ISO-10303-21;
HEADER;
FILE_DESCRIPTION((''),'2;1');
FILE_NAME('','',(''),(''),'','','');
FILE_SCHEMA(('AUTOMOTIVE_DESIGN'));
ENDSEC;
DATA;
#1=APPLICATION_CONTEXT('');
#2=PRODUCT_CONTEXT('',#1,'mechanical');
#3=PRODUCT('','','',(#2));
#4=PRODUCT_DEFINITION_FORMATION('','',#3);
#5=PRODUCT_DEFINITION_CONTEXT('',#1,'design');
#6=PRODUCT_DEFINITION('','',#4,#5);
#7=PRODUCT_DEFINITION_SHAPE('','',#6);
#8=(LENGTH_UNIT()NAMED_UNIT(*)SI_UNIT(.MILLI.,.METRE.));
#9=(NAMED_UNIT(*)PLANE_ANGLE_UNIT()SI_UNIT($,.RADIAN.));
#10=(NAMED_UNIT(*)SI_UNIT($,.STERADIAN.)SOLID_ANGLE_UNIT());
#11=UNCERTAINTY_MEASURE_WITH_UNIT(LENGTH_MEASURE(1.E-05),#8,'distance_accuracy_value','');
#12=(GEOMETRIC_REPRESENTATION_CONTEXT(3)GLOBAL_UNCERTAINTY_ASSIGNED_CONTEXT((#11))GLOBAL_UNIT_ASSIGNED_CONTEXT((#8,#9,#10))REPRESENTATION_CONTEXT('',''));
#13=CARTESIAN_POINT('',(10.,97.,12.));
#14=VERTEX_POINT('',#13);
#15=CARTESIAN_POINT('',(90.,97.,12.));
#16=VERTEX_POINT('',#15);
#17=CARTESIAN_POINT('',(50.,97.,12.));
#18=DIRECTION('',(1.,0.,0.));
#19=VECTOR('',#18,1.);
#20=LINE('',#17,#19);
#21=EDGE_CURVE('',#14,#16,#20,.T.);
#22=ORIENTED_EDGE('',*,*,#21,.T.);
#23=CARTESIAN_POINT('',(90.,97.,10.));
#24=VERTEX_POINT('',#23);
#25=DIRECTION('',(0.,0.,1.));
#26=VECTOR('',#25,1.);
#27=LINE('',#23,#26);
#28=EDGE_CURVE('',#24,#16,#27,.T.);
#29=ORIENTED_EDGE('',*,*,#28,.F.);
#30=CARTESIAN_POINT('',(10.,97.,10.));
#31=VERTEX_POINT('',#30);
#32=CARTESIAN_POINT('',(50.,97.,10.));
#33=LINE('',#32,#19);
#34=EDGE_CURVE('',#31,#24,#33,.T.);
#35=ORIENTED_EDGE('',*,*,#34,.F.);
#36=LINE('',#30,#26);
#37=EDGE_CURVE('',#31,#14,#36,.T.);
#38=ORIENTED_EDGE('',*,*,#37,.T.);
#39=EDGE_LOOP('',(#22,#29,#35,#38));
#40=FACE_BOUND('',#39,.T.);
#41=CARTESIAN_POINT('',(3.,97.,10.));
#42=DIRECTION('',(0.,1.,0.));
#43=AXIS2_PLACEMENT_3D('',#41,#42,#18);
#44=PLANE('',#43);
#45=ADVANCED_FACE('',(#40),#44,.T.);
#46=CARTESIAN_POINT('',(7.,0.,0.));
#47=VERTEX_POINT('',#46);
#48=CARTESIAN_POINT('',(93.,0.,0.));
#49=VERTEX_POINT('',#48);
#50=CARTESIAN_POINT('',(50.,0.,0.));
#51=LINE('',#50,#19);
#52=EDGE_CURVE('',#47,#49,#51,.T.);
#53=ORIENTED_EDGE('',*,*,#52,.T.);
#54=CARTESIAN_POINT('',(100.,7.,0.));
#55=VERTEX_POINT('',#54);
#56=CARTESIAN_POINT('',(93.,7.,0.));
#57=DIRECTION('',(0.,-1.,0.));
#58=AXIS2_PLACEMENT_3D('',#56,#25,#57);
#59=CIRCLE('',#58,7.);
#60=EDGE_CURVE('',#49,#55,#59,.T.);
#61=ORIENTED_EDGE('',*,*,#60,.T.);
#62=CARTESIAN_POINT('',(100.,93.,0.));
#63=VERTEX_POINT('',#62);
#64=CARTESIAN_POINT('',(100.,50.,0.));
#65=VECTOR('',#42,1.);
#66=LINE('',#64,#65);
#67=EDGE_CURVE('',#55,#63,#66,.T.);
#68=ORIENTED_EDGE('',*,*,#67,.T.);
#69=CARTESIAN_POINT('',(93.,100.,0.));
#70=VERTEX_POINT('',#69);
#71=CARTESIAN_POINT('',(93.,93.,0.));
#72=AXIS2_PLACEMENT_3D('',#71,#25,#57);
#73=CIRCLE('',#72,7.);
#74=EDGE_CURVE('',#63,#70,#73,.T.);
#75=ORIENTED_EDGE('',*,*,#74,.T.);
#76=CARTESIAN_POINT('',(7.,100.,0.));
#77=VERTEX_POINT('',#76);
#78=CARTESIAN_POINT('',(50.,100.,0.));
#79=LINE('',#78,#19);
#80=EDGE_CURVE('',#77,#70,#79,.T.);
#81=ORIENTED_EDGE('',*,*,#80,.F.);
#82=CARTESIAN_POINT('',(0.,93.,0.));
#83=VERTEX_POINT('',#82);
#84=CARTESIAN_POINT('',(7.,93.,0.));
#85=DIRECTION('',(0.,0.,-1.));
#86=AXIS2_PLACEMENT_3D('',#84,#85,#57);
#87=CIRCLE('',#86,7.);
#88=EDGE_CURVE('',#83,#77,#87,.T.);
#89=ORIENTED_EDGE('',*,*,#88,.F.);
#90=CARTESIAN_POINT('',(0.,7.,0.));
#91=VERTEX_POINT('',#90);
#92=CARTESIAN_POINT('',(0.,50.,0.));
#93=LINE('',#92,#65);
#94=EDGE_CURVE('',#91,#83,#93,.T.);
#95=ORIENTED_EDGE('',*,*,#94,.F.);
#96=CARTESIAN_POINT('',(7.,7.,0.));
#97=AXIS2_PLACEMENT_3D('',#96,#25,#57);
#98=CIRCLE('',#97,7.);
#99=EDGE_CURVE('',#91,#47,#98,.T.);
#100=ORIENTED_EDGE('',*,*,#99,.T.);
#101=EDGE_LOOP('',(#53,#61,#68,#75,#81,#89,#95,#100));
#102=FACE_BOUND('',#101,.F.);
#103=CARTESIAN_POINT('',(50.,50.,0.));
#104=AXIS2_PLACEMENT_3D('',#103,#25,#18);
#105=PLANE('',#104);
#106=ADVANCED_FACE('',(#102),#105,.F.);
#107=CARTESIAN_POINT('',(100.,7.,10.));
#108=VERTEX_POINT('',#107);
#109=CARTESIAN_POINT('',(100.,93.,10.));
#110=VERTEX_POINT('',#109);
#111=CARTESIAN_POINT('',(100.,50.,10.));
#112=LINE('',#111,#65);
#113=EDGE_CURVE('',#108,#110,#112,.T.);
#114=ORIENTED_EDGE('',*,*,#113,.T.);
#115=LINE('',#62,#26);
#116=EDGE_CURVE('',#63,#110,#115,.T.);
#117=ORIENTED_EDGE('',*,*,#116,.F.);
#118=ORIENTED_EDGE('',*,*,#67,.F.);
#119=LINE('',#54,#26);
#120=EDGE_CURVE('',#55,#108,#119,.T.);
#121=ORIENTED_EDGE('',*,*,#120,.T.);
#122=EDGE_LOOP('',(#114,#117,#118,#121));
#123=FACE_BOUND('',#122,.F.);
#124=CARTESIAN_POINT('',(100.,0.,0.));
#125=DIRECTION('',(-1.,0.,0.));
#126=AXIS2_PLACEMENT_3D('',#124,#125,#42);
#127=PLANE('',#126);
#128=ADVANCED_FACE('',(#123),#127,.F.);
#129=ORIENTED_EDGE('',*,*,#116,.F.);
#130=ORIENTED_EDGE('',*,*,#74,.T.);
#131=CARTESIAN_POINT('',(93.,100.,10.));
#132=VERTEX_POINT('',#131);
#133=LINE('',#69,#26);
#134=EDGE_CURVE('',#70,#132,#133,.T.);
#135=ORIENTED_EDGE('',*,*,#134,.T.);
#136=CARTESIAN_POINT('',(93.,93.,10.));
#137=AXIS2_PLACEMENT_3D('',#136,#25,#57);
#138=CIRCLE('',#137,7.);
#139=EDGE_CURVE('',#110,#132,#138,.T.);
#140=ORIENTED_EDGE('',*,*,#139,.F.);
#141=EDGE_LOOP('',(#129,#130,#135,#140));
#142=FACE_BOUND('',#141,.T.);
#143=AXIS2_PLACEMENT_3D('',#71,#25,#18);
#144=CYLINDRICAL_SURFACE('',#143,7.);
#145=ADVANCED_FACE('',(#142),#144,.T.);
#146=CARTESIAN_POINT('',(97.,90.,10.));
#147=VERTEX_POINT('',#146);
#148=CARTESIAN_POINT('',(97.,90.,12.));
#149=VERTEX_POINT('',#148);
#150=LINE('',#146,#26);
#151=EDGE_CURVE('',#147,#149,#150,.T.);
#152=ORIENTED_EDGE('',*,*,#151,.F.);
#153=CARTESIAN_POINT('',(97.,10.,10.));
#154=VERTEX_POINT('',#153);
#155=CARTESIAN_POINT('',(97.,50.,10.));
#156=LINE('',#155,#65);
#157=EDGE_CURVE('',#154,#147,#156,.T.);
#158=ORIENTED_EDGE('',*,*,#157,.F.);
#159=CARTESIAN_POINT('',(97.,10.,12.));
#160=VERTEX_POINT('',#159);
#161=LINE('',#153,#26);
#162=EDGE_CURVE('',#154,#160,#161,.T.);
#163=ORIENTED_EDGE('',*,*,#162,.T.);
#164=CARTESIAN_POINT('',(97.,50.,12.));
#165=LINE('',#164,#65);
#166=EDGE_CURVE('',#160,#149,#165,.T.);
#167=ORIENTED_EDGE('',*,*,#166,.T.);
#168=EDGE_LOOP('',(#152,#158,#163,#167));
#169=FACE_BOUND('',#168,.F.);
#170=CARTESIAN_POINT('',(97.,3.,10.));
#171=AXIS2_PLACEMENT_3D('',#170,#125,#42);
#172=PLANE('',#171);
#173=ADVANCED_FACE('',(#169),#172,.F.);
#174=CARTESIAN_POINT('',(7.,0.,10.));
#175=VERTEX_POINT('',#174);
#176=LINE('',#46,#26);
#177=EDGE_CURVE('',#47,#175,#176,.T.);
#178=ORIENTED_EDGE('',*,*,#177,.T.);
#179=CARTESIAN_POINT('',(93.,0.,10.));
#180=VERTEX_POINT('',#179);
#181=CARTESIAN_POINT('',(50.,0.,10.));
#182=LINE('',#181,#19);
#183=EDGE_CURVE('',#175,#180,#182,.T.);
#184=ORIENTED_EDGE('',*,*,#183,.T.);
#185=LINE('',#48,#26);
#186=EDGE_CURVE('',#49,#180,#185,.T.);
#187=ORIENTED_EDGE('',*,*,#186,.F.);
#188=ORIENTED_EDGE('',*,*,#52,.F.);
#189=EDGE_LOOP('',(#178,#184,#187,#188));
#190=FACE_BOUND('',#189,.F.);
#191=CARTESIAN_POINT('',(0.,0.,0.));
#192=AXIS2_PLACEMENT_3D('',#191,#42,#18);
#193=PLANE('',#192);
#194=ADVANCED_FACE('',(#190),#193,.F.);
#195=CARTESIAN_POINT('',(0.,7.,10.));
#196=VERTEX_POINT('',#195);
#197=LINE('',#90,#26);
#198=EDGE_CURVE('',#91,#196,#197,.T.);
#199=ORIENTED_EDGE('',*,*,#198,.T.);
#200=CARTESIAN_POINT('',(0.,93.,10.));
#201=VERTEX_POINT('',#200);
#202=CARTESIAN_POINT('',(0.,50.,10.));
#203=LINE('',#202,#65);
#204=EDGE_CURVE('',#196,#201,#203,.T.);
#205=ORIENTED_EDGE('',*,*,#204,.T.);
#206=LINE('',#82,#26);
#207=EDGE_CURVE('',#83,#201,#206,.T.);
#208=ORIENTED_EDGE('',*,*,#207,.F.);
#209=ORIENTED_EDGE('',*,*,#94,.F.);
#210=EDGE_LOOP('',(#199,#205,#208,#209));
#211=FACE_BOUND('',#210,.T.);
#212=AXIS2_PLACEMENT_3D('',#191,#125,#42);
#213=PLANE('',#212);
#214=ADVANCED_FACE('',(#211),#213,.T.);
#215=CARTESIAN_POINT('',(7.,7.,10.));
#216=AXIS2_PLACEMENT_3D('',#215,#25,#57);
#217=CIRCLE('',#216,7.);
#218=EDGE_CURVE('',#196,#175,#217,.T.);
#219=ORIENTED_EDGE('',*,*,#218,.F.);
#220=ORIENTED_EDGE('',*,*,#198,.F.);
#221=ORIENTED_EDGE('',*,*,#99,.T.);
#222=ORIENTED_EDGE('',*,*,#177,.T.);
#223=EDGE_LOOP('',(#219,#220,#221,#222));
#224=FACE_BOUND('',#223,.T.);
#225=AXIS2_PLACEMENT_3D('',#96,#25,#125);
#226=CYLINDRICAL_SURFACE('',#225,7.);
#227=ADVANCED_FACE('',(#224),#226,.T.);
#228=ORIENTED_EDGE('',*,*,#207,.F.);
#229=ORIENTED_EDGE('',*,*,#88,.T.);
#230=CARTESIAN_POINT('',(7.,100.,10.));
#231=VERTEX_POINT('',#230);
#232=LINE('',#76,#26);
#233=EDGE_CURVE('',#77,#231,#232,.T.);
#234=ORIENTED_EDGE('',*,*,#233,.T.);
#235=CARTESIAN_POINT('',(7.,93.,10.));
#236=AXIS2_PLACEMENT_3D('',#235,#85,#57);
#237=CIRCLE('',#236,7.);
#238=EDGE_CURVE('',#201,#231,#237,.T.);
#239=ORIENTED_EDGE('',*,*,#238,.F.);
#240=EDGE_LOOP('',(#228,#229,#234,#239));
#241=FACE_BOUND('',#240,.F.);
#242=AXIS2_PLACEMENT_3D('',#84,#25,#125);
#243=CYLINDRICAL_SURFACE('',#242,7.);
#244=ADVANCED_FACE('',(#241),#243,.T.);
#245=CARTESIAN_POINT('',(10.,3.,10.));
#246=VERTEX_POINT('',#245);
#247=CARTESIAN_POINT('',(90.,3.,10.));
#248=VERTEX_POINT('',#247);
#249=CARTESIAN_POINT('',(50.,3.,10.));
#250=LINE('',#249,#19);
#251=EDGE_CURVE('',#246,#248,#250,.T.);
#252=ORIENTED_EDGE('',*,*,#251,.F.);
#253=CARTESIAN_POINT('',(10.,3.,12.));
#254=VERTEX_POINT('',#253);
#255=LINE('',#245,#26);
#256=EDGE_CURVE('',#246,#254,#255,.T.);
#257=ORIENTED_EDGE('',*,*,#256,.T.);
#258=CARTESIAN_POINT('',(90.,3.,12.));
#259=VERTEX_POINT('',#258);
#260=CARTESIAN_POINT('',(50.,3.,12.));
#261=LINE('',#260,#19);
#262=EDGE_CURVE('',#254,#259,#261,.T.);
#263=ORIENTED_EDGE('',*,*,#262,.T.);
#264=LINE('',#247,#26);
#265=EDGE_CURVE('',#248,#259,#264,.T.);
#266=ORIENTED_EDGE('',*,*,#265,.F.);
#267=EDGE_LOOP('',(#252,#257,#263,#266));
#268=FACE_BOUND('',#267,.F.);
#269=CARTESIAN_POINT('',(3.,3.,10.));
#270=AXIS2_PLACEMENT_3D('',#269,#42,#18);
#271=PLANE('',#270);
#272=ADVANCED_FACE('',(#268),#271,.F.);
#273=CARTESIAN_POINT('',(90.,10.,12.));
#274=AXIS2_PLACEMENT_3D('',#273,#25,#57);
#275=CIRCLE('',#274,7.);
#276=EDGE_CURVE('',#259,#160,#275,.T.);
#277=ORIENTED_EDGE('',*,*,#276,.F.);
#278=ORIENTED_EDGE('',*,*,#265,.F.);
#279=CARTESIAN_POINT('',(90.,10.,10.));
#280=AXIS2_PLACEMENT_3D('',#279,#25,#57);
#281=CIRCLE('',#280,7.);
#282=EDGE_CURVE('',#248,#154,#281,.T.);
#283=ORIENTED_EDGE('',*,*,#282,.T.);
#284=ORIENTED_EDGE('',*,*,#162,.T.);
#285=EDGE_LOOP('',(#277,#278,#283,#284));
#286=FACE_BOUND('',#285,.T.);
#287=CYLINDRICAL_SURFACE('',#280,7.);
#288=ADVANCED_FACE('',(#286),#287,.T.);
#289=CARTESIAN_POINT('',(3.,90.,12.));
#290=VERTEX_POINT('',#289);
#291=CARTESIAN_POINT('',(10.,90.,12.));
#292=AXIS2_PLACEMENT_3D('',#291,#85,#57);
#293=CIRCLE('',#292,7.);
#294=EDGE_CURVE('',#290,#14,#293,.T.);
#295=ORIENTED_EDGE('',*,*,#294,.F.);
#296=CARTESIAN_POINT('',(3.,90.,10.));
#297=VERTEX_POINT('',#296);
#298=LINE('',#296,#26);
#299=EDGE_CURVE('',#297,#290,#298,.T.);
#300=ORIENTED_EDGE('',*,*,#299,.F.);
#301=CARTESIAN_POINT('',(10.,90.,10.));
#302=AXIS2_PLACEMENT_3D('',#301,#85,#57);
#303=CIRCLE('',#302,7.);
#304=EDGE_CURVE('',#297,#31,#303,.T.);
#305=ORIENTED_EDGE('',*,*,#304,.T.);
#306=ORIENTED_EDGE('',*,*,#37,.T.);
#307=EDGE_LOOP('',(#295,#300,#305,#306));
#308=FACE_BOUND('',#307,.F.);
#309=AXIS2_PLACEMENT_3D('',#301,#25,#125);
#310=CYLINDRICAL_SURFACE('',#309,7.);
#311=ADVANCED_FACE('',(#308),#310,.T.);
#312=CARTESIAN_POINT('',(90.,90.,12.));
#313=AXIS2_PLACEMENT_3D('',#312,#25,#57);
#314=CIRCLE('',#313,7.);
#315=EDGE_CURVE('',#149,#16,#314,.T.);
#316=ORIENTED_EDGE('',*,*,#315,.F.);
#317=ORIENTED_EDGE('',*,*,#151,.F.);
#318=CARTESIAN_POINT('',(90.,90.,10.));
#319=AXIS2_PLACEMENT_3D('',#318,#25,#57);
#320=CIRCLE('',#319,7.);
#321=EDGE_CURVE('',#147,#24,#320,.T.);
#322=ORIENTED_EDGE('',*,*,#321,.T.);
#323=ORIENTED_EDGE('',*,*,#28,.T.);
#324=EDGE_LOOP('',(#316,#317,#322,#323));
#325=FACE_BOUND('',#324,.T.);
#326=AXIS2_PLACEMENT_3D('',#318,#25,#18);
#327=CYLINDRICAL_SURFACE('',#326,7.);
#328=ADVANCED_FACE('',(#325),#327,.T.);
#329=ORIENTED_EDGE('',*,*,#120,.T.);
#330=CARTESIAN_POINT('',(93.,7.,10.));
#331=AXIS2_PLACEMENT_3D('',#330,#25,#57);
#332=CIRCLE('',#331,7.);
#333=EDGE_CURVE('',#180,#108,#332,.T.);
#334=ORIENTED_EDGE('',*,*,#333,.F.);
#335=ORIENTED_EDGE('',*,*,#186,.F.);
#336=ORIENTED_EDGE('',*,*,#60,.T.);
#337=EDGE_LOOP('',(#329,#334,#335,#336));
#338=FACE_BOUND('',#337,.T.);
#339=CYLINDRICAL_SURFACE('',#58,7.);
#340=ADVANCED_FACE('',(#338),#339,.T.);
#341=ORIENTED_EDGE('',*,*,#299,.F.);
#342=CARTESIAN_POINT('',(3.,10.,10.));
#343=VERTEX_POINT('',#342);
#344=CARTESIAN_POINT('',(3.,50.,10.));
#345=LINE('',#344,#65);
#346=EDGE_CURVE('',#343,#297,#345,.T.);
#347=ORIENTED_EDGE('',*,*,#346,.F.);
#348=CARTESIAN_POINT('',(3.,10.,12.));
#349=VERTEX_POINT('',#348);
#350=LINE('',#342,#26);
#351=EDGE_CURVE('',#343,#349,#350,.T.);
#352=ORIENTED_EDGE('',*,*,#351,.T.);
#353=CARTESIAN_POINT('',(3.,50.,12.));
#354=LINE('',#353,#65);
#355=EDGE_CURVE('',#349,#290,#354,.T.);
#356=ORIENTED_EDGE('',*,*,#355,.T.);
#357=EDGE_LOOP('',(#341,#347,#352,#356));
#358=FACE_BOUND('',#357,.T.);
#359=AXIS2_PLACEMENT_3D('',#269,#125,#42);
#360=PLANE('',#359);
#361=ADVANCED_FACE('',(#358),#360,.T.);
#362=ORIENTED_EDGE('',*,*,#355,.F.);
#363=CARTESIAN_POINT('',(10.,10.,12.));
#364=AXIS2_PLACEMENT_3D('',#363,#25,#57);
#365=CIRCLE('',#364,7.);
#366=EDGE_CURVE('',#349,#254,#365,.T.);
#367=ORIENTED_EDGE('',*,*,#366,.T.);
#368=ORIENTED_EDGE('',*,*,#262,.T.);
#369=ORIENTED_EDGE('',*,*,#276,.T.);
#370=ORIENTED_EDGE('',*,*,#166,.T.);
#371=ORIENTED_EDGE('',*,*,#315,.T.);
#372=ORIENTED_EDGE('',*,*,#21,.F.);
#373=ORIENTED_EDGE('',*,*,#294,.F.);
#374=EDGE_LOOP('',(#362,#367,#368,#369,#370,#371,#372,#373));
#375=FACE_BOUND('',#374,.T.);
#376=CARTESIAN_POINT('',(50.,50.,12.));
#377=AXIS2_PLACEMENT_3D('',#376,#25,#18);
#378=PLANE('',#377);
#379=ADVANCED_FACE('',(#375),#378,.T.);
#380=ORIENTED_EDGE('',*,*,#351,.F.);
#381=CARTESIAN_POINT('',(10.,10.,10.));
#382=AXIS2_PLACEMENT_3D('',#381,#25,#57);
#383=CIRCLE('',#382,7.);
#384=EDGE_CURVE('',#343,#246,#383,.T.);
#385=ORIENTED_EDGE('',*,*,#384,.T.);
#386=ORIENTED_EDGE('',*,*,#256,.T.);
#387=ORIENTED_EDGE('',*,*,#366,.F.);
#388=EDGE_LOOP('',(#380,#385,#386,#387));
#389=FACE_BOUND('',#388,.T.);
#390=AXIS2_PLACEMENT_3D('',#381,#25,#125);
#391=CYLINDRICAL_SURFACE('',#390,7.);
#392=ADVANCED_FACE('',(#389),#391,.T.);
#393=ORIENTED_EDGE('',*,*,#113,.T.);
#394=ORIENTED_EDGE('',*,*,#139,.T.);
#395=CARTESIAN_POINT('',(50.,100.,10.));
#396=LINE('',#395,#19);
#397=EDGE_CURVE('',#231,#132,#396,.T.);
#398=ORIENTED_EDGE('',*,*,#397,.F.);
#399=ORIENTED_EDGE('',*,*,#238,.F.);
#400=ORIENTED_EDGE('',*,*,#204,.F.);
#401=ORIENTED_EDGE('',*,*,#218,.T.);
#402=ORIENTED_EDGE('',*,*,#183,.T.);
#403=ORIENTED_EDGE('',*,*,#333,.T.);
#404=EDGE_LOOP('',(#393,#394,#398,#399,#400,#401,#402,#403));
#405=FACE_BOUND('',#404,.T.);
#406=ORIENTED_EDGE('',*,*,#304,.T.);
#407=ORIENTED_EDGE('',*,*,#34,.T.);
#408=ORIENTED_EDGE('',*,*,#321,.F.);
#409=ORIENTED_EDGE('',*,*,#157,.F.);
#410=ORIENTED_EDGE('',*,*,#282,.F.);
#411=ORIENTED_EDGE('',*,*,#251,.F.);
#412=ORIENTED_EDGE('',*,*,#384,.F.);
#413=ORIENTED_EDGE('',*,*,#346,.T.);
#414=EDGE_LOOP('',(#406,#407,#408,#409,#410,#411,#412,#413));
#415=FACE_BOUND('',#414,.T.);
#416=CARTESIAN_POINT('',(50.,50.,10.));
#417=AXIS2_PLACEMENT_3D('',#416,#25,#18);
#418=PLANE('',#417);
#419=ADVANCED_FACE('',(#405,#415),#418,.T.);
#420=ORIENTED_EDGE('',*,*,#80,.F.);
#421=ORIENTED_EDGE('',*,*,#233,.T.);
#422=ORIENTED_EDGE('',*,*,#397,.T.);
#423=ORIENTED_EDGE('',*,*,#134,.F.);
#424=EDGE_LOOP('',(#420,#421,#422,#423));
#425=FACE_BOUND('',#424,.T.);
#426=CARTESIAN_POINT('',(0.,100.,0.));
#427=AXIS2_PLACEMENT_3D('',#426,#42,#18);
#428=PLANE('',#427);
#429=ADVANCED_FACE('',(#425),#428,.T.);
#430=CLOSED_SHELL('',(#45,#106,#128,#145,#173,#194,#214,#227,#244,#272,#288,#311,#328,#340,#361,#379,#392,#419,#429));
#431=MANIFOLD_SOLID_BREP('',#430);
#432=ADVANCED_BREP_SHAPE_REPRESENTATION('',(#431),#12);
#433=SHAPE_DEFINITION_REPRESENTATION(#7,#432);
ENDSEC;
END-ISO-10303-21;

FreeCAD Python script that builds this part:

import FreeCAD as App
import Part
import Sketcher
from FreeCAD import Vector
Q = App.Units.Quantity


def edges_at(feature, points):
    """Names of the edges that pass closest to the given points."""
    edges = feature.Shape.Edges
    near = lambda p: min(range(len(edges)), key=lambda i: edges[i].distToShape(Part.Vertex(*p))[0])
    return sorted({f"Edge{near(p) + 1}" for p in points})

doc = App.newDocument("Part")
body = doc.addObject("PartDesign::Body", "Body")

# Sketch on XY plane
sketch1 = body.newObject("Sketcher::SketchObject", "Sketch")
sketch1.AttachmentSupport = (doc.getObject("XY_Plane"), [""])
sketch1.MapMode = "FlatFace"
sketch1.addGeometry([
    Part.LineSegment(Vector(0, 100, 0), Vector(0, 0, 0)),
    Part.LineSegment(Vector(0, 0, 0), Vector(100, 0, 0)),
    Part.LineSegment(Vector(100, 0, 0), Vector(100, 100, 0)),
    Part.LineSegment(Vector(100, 100, 0), Vector(0, 100, 0)),
], False)
sketch1.addConstraint([
    Sketcher.Constraint("Coincident", 0, 2, 1, 1),
    Sketcher.Constraint("Coincident", 1, 2, 2, 1),
    Sketcher.Constraint("Coincident", 2, 2, 3, 1),
    Sketcher.Constraint("Coincident", 3, 2, 0, 1),
    Sketcher.Constraint("Vertical", 0),
    Sketcher.Constraint("Horizontal", 1),
    Sketcher.Constraint("Vertical", 2),
    Sketcher.Constraint("Horizontal", 3),
    Sketcher.Constraint("Coincident", 0, 2, -1, 1),
    Sketcher.Constraint("Equal", 3, 0),
    Sketcher.Constraint("DistanceX", 1, 1, 1, 2, Q("100 mm")),
])
pad1 = body.newObject("PartDesign::Pad", "Pad")
pad1.Profile = sketch1
pad1.Length = 10
doc.recompute()

fillet = body.newObject("PartDesign::Fillet", "Fillet")
fillet.Base = (pad1, edges_at(pad1, [
    (0, 0, 5),
    (0, 100, 5),
    (100, 0, 5),
    (100, 100, 5),
]))
fillet.Radius = 7
body2 = doc.addObject("PartDesign::Body", "Body001")

# Sketch on XY plane
sketch2 = body2.newObject("Sketcher::SketchObject", "Sketch001")
sketch2.AttachmentSupport = (doc.getObject("XY_Plane001"), [""])
sketch2.MapMode = "FlatFace"
sketch2.AttachmentOffset = App.Placement(Vector(0, 0, 10), App.Rotation())
sketch2.addGeometry([
    Part.LineSegment(Vector(3, 97, 0), Vector(3, 3, 0)),
    Part.LineSegment(Vector(3, 3, 0), Vector(97, 3, 0)),
    Part.LineSegment(Vector(97, 3, 0), Vector(97, 97, 0)),
    Part.LineSegment(Vector(97, 97, 0), Vector(3, 97, 0)),
], False)
sketch2.addConstraint([
    Sketcher.Constraint("Coincident", 0, 2, 1, 1),
    Sketcher.Constraint("Coincident", 1, 2, 2, 1),
    Sketcher.Constraint("Coincident", 2, 2, 3, 1),
    Sketcher.Constraint("Coincident", 3, 2, 0, 1),
    Sketcher.Constraint("Vertical", 0),
    Sketcher.Constraint("Horizontal", 1),
    Sketcher.Constraint("Vertical", 2),
    Sketcher.Constraint("Horizontal", 3),
    Sketcher.Constraint("Equal", 3, 0),
    Sketcher.Constraint("DistanceX", 1, 1, 1, 2, Q("94 mm")),
    Sketcher.Constraint("DistanceX", -1, 1, 0, 2, Q("3 mm")),
    Sketcher.Constraint("DistanceY", -1, 1, 0, 2, Q("3 mm")),
])
pad2 = body2.newObject("PartDesign::Pad", "Pad001")
pad2.Profile = sketch2
pad2.Length = 2
doc.recompute()

fillet2 = body2.newObject("PartDesign::Fillet", "Fillet001")
fillet2.Base = (pad2, edges_at(pad2, [
    (3, 3, 11),
    (3, 97, 11),
    (97, 3, 11),
    (97, 97, 11),
]))
fillet2.Radius = 7
doc.recompute()

boolean = body2.newObject("PartDesign::Boolean", "Boolean")
boolean.Type = "Fuse"
boolean.addObjects([body])

doc.recompute()
